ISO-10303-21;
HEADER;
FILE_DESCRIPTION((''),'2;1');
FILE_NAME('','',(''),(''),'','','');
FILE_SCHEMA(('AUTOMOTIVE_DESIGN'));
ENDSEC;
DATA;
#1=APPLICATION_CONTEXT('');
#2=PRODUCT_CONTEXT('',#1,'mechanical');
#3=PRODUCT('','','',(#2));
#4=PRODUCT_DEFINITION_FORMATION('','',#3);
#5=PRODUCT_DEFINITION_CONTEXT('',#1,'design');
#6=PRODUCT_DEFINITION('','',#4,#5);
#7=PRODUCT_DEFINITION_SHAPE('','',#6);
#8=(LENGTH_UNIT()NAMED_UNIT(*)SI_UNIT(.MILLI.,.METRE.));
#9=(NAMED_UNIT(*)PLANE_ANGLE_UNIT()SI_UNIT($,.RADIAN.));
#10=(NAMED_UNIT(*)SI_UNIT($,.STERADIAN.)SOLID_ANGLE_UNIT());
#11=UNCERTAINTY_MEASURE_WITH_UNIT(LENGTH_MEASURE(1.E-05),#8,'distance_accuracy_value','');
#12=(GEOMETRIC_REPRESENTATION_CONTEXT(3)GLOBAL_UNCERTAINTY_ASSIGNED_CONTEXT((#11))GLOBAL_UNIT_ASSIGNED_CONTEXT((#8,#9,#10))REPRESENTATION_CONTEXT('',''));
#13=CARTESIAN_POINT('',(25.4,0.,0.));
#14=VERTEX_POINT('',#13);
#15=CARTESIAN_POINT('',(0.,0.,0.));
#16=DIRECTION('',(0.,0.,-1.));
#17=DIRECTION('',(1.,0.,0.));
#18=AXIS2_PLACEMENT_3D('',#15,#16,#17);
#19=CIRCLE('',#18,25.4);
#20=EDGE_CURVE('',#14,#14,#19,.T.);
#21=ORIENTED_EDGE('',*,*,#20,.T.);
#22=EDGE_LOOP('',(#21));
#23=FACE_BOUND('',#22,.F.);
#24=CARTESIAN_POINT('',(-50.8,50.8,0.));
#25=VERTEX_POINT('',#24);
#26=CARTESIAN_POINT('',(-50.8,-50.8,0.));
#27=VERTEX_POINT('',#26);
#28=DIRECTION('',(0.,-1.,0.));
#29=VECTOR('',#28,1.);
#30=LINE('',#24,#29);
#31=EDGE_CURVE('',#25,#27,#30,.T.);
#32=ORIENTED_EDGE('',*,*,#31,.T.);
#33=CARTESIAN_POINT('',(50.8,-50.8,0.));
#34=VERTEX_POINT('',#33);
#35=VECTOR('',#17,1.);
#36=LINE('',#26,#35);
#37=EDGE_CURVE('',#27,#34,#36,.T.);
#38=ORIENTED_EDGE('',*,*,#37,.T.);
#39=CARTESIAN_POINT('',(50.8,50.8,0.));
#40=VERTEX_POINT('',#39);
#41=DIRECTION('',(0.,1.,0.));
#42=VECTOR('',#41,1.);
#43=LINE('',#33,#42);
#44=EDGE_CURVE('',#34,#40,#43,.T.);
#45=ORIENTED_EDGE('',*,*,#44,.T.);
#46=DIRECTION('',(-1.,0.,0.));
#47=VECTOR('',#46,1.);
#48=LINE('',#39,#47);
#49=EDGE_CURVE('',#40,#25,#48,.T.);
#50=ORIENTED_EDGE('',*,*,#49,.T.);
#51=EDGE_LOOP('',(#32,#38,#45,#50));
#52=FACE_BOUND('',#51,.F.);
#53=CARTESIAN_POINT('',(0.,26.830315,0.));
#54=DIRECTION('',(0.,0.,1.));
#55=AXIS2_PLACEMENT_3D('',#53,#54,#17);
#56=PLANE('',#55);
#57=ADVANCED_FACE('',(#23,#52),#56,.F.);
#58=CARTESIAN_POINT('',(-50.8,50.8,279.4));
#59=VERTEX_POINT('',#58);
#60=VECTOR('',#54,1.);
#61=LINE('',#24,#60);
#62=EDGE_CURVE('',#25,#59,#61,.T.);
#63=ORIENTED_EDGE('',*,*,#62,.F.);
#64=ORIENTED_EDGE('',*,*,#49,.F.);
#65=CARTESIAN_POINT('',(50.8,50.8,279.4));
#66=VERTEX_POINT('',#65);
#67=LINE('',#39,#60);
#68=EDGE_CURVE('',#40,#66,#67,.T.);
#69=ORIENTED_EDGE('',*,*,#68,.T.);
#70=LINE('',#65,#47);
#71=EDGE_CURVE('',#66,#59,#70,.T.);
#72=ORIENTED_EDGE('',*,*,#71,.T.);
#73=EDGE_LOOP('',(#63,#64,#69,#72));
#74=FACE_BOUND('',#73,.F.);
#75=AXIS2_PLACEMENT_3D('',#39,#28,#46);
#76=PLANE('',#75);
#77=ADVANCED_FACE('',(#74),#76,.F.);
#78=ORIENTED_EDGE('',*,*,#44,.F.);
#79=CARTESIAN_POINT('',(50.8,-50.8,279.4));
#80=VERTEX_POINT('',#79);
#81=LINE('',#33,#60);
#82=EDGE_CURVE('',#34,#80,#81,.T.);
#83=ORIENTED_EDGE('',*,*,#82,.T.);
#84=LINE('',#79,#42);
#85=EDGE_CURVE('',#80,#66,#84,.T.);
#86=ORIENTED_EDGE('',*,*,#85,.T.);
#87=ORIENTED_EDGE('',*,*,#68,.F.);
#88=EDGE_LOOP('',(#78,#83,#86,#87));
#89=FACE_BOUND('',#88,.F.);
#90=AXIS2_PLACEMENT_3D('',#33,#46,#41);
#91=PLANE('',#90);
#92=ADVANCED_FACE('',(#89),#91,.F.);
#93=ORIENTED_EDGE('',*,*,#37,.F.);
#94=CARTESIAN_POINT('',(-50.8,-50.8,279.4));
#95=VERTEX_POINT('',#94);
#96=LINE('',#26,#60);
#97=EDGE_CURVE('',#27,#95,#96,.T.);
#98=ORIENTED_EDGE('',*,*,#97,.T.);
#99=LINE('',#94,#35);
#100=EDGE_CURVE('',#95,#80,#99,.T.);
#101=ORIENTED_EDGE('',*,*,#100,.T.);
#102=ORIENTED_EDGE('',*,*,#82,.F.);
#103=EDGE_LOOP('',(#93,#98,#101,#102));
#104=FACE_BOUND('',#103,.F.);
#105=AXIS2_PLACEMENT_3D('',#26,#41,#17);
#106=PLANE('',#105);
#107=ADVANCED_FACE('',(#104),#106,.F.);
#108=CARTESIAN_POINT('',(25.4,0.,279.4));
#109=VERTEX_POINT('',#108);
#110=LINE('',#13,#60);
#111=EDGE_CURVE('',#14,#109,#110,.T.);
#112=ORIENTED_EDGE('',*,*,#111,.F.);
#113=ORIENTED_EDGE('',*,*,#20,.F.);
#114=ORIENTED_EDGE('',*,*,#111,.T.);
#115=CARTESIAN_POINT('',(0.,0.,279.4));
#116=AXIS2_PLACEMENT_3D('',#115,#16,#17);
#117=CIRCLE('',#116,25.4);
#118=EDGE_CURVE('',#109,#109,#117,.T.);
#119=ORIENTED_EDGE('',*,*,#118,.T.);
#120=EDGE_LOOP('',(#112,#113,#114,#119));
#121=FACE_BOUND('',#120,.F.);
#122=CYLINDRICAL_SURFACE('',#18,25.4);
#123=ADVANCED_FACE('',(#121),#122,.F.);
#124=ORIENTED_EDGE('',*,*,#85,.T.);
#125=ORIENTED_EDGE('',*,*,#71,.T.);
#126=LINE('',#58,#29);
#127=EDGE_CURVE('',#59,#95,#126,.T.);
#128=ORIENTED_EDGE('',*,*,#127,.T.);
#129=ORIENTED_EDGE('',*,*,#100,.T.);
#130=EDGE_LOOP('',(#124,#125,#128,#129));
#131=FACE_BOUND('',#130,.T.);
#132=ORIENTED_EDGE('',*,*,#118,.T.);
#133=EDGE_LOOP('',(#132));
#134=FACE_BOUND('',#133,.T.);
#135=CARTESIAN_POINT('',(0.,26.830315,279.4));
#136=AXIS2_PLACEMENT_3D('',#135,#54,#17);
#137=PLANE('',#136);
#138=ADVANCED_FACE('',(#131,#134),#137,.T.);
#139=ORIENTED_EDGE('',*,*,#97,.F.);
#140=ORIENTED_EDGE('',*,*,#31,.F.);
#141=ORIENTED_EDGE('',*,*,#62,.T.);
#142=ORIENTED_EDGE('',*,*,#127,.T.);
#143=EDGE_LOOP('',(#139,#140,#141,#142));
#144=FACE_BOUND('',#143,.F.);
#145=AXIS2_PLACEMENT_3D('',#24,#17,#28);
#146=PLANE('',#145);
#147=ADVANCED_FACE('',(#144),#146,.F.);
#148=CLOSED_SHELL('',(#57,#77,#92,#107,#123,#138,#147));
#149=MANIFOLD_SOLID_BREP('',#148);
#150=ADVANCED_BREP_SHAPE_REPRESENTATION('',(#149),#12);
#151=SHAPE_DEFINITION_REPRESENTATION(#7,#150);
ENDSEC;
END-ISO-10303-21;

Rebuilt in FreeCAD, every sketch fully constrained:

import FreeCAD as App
import Part
import Sketcher
Q = App.Units.Quantity

doc = App.newDocument("Part")
body = doc.addObject("PartDesign::Body", "Body")

sketch1 = body.newObject("Sketcher::SketchObject", "Sketch")
sketch1.AttachmentSupport = (doc.getObject("XY_Plane"), [""])
sketch1.MapMode = "FlatFace"
sketch1.addGeometry([
    Part.LineSegment(App.Vector(51, 51, 0), App.Vector(-51, 51, 0)),
    Part.LineSegment(App.Vector(-51, 51, 0), App.Vector(-51, -51, 0)),
    Part.LineSegment(App.Vector(-51, -51, 0), App.Vector(51, -51, 0)),
    Part.LineSegment(App.Vector(51, -51, 0), App.Vector(51, 51, 0)),
    Part.Circle(App.Vector(0, 0, 0), App.Vector(0, 0, 1), 25),
], False)
sketch1.addConstraint([
    Sketcher.Constraint("Coincident", 0, 2, 1, 1),
    Sketcher.Constraint("Coincident", 1, 2, 2, 1),
    Sketcher.Constraint("Coincident", 2, 2, 3, 1),
    Sketcher.Constraint("Coincident", 3, 2, 0, 1),
    Sketcher.Constraint("Horizontal", 0),
    Sketcher.Constraint("Vertical", 1),
    Sketcher.Constraint("Horizontal", 2),
    Sketcher.Constraint("Vertical", 3),
    Sketcher.Constraint("Coincident", 4, 3, -1, 1),
    Sketcher.Constraint("Symmetric", 0, 2, 2, 2, -1, 1),
    Sketcher.Constraint("Equal", 2, 1),
    Sketcher.Constraint("Diameter", 4, Q("2 in")),
    Sketcher.Constraint("DistanceX", 0, 2, 0, 1, Q("4 in")),
])
pad1 = body.newObject("PartDesign::Pad", "Pad")
pad1.Profile = sketch1
pad1.Length = Q("11 in")

doc.recompute()
